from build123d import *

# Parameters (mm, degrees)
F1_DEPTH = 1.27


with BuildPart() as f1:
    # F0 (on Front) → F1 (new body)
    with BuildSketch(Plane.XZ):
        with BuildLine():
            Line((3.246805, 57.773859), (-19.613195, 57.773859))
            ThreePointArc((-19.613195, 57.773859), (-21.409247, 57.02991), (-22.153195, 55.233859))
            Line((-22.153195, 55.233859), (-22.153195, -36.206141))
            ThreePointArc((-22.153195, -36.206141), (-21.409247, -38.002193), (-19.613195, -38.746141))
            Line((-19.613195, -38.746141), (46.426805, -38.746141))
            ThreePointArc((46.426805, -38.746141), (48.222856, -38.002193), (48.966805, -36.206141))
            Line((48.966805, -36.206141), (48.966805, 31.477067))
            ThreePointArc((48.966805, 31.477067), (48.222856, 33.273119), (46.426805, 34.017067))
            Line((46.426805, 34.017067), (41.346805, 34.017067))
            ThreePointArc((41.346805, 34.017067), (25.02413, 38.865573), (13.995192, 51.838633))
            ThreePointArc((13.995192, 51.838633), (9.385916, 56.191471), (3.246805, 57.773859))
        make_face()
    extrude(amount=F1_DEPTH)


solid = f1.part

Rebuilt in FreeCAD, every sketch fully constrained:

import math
import FreeCAD as App
import Part
import Sketcher
from FreeCAD import Vector
Q = App.Units.Quantity

doc = App.newDocument("Part")
body = doc.addObject("PartDesign::Body", "Body")

sketch1 = body.newObject("Sketcher::SketchObject", "Sketch")
sketch1.AttachmentSupport = (doc.getObject("XZ_Plane"), [""])
sketch1.MapMode = "FlatFace"
sketch1.addGeometry([
    Part.LineSegment(Vector(3.246805, 57.773859, 0), Vector(-19.613195, 57.773859, 0)),
    Part.ArcOfCircle(Part.Circle(Vector(-19.613196, 55.23386, 0), Vector(0, 0, 1), 2.539999), math.radians(89.999979), math.radians(180.000021)),
    Part.LineSegment(Vector(-22.153195, 55.233859, 0), Vector(-22.153195, -36.206141, 0)),
    Part.ArcOfCircle(Part.Circle(Vector(-19.613198, -36.206144, 0), Vector(0, 0, 1), 2.539997), math.radians(179.99994), math.radians(270.00006)),
    Part.LineSegment(Vector(-19.613195, -38.746141, 0), Vector(46.426805, -38.746141, 0)),
    Part.ArcOfCircle(Part.Circle(Vector(46.426806, -36.206142, 0), Vector(0, 0, 1), 2.539999), math.radians(-90.000021), math.radians(0.000021)),
    Part.LineSegment(Vector(48.966805, -36.206141, 0), Vector(48.966805, 31.477067, 0)),
    Part.ArcOfCircle(Part.Circle(Vector(46.426806, 31.477068, 0), Vector(0, 0, 1), 2.539999), math.radians(-0.000021), math.radians(90.000021)),
    Part.LineSegment(Vector(46.426805, 34.017067, 0), Vector(41.346805, 34.017067, 0)),
    Part.ArcOfCircle(Part.Circle(Vector(41.346806, 63.916768, 0), Vector(0, 0, 1), 29.899701), math.radians(-156.174338), math.radians(-90.000002)),
    Part.ArcOfCircle(Part.Circle(Vector(3.246802, 45.073855, 0), Vector(0, 0, 1), 12.700004), math.radians(32.185324), math.radians(89.999988)),
], False)
sketch1.addConstraint([
    Sketcher.Constraint("Coincident", 0, 2, 1, 1),
    Sketcher.Constraint("Coincident", 1, 2, 2, 1),
    Sketcher.Constraint("Coincident", 2, 2, 3, 1),
    Sketcher.Constraint("Coincident", 3, 2, 4, 1),
    Sketcher.Constraint("Coincident", 4, 2, 5, 1),
    Sketcher.Constraint("Coincident", 5, 2, 6, 1),
    Sketcher.Constraint("Coincident", 6, 2, 7, 1),
    Sketcher.Constraint("Coincident", 7, 2, 8, 1),
    Sketcher.Constraint("Coincident", 8, 2, 9, 2),
    Sketcher.Constraint("Coincident", 9, 1, 10, 1),
    Sketcher.Constraint("Coincident", 10, 2, 0, 1),
    Sketcher.Constraint("Horizontal", 0),
    Sketcher.Constraint("Vertical", 2),
    Sketcher.Constraint("Horizontal", 4),
    Sketcher.Constraint("Vertical", 6),
    Sketcher.Constraint("Horizontal", 8),
    Sketcher.Constraint("Radius", 1, Q("0.1 in")),
    Sketcher.Constraint("Radius", 3, Q("0.0999999 in")),
    Sketcher.Constraint("Radius", 5, Q("0.1 in")),
    Sketcher.Constraint("Radius", 7, Q("0.1 in")),
    Sketcher.Constraint("Radius", 10, Q("0.5000002 in")),
    Sketcher.Constraint("DistanceX", 0, 2, 0, 1, Q("0.9 in")),
    Sketcher.Constraint("DistanceX", 4, 1, 4, 2, Q("2.6 in")),
    Sketcher.Constraint("DistanceX", 8, 2, 8, 1, Q("0.2 in")),
    Sketcher.Constraint("DistanceY", 2, 2, 2, 1, Q("3.6 in")),
    Sketcher.Constraint("DistanceX", 1, 2, 10, 3, Q("0.9999999 in")),
    Sketcher.Constraint("DistanceX", 1, 2, 10, 2, Q("1 in")),
    Sketcher.Constraint("DistanceY", 3, 3, 1, 3, Q("3.6000001 in")),
    Sketcher.Constraint("DistanceX", 3, 3, 5, 3, Q("2.6000001 in")),
    Sketcher.Constraint("DistanceX", 9, 3, 7, 3, Q("0.2 in")),
    Sketcher.Constraint("DistanceY", 1, 2, 0, 2, Q("0.1 in")),
    Sketcher.Constraint("DistanceX", 2, 2, 3, 2, Q("0.1 in")),
    Sketcher.Constraint("DistanceY", 4, 2, 5, 2, Q("0.1 in")),
    Sketcher.Constraint("DistanceX", 7, 2, 6, 2, Q("0.1 in")),
    Sketcher.Constraint("DistanceY", 6, 2, 7, 2, Q("0.1 in")),
    Sketcher.Constraint("Radius", 9, 29.899701),
    Sketcher.Constraint("DistanceY", 6, 1, 6, 2, 67.683208),
    Sketcher.Constraint("DistanceY", -1, 1, 1, 3, 55.23386),
    Sketcher.Constraint("DistanceX", -1, 1, 9, 1, 13.995192),
])
pad1 = body.newObject("PartDesign::Pad", "Pad")
pad1.Profile = sketch1
pad1.Length = Q("0.05 in")

doc.recompute()
